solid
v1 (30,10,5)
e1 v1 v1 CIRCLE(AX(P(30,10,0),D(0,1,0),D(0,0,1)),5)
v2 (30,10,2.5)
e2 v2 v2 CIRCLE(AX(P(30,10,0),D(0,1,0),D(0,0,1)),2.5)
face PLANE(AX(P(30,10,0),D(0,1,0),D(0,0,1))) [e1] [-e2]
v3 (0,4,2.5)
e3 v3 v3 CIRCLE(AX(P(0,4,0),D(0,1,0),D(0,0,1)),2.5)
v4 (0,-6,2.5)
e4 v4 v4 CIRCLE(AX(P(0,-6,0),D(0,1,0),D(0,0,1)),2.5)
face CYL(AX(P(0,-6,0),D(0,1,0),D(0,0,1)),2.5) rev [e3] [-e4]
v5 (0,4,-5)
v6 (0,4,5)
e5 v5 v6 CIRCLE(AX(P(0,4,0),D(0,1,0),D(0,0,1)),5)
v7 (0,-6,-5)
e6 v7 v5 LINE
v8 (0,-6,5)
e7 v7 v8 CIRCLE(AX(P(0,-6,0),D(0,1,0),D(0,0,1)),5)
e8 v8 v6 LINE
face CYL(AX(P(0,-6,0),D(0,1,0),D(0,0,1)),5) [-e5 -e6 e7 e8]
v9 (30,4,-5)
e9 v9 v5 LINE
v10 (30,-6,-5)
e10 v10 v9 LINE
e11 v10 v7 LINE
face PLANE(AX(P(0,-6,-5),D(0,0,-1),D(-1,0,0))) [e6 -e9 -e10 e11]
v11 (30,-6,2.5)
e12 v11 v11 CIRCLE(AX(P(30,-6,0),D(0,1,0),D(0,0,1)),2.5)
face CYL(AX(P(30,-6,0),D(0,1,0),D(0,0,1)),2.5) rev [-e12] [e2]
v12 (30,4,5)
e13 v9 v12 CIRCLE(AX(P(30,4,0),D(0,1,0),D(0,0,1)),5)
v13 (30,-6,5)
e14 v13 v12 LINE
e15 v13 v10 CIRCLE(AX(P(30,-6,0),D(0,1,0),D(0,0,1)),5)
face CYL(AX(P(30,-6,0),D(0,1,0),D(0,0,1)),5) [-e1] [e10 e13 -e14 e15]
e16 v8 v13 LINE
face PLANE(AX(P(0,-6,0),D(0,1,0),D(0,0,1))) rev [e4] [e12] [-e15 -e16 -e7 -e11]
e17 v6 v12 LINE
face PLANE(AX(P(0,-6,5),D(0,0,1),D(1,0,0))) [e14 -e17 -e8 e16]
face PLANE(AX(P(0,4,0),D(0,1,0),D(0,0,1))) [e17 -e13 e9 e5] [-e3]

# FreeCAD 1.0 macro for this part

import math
import FreeCAD as App
import Part
import Sketcher
from FreeCAD import Vector

doc = App.newDocument("Part")
params = doc.addObject("Spreadsheet::Sheet", "Params")
for row, (alias, value) in enumerate([
    ("sketch1_diameter", "5 mm"),
    ("sketch1_radius", "5 mm"),
    ("sketch1_width", "30 mm"),
    ("pad1_length", "4 mm"),
    ("pad1_length2", "6 mm"),
    ("sketch2_diameter", "10 mm"),
    ("sketch2_diameter2", "5 mm"),
    ("pad2_length", "11 mm"),
    ("pad2_length2", "5 mm"),
], start=1):
    params.set(f"A{row}", alias)
    params.set(f"B{row}", "=" + value)
    params.setAlias(f"B{row}", alias)

body = doc.addObject("PartDesign::Body", "Body")

sketch1 = doc.addObject("Sketcher::SketchObject", "Sketch")
body.addObject(sketch1)
sketch1.AttachmentSupport = (doc.XZ_Plane, [""])
sketch1.MapMode = "FlatFace"
sketch1.addGeometry([
    Part.LineSegment(Vector(30, -5, 0), Vector(0, -5, 0)),
    Part.ArcOfCircle(Part.Circle(Vector(0, 0, 0), Vector(0, 0, 1), 5), math.radians(90), math.radians(270)),
    Part.LineSegment(Vector(0, 5, 0), Vector(30, 5, 0)),
    Part.ArcOfCircle(Part.Circle(Vector(30, 0, 0), Vector(0, 0, 1), 5), math.radians(-90), math.radians(90)),
    Part.Circle(Vector(30, 0, 0), Vector(0, 0, 1), 2.5),
    Part.Circle(Vector(0, 0, 0), Vector(0, 0, 1), 2.5),
], False)
sketch1.addConstraint([
    Sketcher.Constraint("Tangent", 0, 2, 1, 2),
    Sketcher.Constraint("Tangent", 1, 1, 2, 1),
    Sketcher.Constraint("Tangent", 2, 2, 3, 2),
    Sketcher.Constraint("Tangent", 3, 1, 0, 1),
    Sketcher.Constraint("Horizontal", 0),
    Sketcher.Constraint("Horizontal", 2),
    Sketcher.Constraint("Coincident", 1, 3, -1, 1),
    Sketcher.Constraint("Coincident", 5, 3, -1, 1),
    Sketcher.Constraint("Coincident", 4, 3, 3, 3),
    Sketcher.Constraint("Equal", 4, 5),
    Sketcher.Constraint("Diameter", 4, 5.0),
    Sketcher.Constraint("Radius", 1, 5.0),
    Sketcher.Constraint("DistanceX", 0, 2, 0, 1, 30.0),
])
sketch1.setExpression("Constraints[10]", "Params.sketch1_diameter")
sketch1.setExpression("Constraints[11]", "Params.sketch1_radius")
sketch1.setExpression("Constraints[12]", "Params.sketch1_width")
pad1 = doc.addObject("PartDesign::Pad", "Pad")
body.addObject(pad1)
pad1.Profile = sketch1
pad1.Type = "TwoLengths"
pad1.setExpression("Length", "Params.pad1_length")
pad1.setExpression("Length2", "Params.pad1_length2")
pad1.Reversed = True

sketch2 = doc.addObject("Sketcher::SketchObject", "Sketch001")
body.addObject(sketch2)
sketch2.AttachmentSupport = (doc.XZ_Plane, [""])
sketch2.MapMode = "FlatFace"
sketch2.AttachmentOffset = App.Placement(Vector(0, 0, 1), App.Rotation())
sketch2.addGeometry([
    Part.Circle(Vector(30, 0, 0), Vector(0, 0, 1), 5),
    Part.Circle(Vector(30, 0, 0), Vector(0, 0, 1), 2.5),
], False)
sketch2.addConstraint([
    Sketcher.Constraint("Coincident", 1, 3, 0, 3),
    Sketcher.Constraint("PointOnObject", 0, 3, -1),
    Sketcher.Constraint("Diameter", 0, 10.0),
    Sketcher.Constraint("Diameter", 1, 5.0),
    Sketcher.Constraint("DistanceX", -1, 1, 0, 3, 30.0),
])
sketch2.setExpression("Constraints[2]", "Params.sketch2_diameter")
sketch2.setExpression("Constraints[3]", "Params.sketch2_diameter2")
pad2 = doc.addObject("PartDesign::Pad", "Pad001")
body.addObject(pad2)
pad2.Profile = sketch2
pad2.Type = "TwoLengths"
pad2.setExpression("Length", "Params.pad2_length")
pad2.setExpression("Length2", "Params.pad2_length2")
pad2.Reversed = True

doc.recompute()
